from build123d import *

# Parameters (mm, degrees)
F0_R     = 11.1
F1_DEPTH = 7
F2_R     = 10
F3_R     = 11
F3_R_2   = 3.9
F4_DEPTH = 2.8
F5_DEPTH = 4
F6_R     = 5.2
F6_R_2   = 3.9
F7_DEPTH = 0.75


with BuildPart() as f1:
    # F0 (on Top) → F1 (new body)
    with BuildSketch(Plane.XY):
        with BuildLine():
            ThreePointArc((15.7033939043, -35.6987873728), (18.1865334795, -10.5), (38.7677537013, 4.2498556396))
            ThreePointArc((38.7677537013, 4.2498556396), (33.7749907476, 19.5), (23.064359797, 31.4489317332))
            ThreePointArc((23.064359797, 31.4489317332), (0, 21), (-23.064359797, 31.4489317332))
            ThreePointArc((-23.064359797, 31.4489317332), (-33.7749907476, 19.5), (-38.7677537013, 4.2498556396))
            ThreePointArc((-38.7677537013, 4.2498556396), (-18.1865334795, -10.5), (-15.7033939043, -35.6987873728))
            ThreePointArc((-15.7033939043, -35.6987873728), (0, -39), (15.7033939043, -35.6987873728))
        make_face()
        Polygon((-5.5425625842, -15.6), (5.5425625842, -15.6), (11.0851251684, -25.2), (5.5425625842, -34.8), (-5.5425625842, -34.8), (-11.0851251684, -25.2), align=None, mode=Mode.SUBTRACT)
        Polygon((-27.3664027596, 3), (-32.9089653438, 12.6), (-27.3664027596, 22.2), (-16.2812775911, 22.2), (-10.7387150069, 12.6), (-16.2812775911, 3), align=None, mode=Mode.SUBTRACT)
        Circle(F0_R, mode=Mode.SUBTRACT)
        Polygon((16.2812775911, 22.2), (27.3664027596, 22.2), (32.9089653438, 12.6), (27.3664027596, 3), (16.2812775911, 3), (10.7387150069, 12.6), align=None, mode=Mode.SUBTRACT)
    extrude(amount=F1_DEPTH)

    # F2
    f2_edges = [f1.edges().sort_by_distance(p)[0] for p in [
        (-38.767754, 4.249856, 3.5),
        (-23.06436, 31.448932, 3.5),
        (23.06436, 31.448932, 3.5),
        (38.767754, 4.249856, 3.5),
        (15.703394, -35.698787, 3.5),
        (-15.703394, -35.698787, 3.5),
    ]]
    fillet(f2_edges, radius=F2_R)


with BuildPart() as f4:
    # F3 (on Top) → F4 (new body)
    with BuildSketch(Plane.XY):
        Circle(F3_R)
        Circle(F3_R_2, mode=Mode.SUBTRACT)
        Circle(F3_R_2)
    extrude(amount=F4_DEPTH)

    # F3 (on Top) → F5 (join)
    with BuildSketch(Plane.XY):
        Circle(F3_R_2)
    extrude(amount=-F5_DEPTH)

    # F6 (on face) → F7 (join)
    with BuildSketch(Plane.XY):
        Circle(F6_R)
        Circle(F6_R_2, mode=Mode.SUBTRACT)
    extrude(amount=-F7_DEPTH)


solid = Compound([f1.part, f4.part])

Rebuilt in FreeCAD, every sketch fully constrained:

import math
import FreeCAD as App
import Part
import Sketcher

V = App.Vector
Q = App.Units.Quantity


def edges_at(feature, points):
    """Names of the edges that pass closest to the given points."""
    edges = feature.Shape.Edges
    near = lambda p: min(range(len(edges)), key=lambda i: edges[i].distToShape(Part.Vertex(*p))[0])
    return sorted({f"Edge{near(p) + 1}" for p in points})

doc = App.newDocument("Part")
body = doc.addObject("PartDesign::Body", "Body")

sketch1 = doc.addObject("Sketcher::SketchObject", "Sketch")
body.addObject(sketch1)
sketch1.AttachmentSupport = (doc.XY_Plane, [""])
sketch1.MapMode = "FlatFace"
sketch1.addGeometry([
    Part.ArcOfCircle(Part.Circle(V(44.756127, -25.839962, 0), V(0, 0, 1), 30.679924), math.radians(101.255745), math.radians(198.744255)),
    Part.ArcOfCircle(Part.Circle(V(0, 0, 0), V(0, 0, 1), 39), math.radians(6.255982), math.radians(53.744018)),
    Part.ArcOfCircle(Part.Circle(V(0, 51.679924, 0), V(0, 0, 1), 30.679924), math.radians(-138.744255), math.radians(-41.255745)),
    Part.ArcOfCircle(Part.Circle(V(0, 0, 0), V(0, 0, 1), 39), math.radians(126.255982), math.radians(173.744018)),
    Part.ArcOfCircle(Part.Circle(V(-44.756127, -25.839962, 0), V(0, 0, 1), 30.679924), math.radians(-18.744255), math.radians(78.744255)),
    Part.ArcOfCircle(Part.Circle(V(0, 0, 0), V(0, 0, 1), 39), math.radians(-113.744018), math.radians(-66.255982)),
    Part.LineSegment(V(-11.085125, -25.2, 0), V(-5.542563, -15.6, 0)),
    Part.LineSegment(V(-5.542563, -15.6, 0), V(5.542563, -15.6, 0)),
    Part.LineSegment(V(5.542563, -15.6, 0), V(11.085125, -25.2, 0)),
    Part.LineSegment(V(11.085125, -25.2, 0), V(5.542563, -34.8, 0)),
    Part.LineSegment(V(5.542563, -34.8, 0), V(-5.542563, -34.8, 0)),
    Part.LineSegment(V(-5.542563, -34.8, 0), V(-11.085125, -25.2, 0)),
    Part.LineSegment(V(-16.281278, 3, 0), V(-27.366403, 3, 0)),
    Part.LineSegment(V(-27.366403, 3, 0), V(-32.908965, 12.6, 0)),
    Part.LineSegment(V(-32.908965, 12.6, 0), V(-27.366403, 22.2, 0)),
    Part.LineSegment(V(-27.366403, 22.2, 0), V(-16.281278, 22.2, 0)),
    Part.LineSegment(V(-16.281278, 22.2, 0), V(-10.738715, 12.6, 0)),
    Part.LineSegment(V(-10.738715, 12.6, 0), V(-16.281278, 3, 0)),
    Part.Circle(V(0, 0, 0), V(0, 0, 1), 11.1),
    Part.LineSegment(V(10.738715, 12.6, 0), V(16.281278, 22.2, 0)),
    Part.LineSegment(V(16.281278, 22.2, 0), V(27.366403, 22.2, 0)),
    Part.LineSegment(V(27.366403, 22.2, 0), V(32.908965, 12.6, 0)),
    Part.LineSegment(V(32.908965, 12.6, 0), V(27.366403, 3, 0)),
    Part.LineSegment(V(27.366403, 3, 0), V(16.281278, 3, 0)),
    Part.LineSegment(V(16.281278, 3, 0), V(10.738715, 12.6, 0)),
], False)
sketch1.addConstraint([
    Sketcher.Constraint("Coincident", 0, 1, 1, 1),
    Sketcher.Constraint("Coincident", 1, 2, 2, 2),
    Sketcher.Constraint("Coincident", 2, 1, 3, 1),
    Sketcher.Constraint("Coincident", 3, 2, 4, 2),
    Sketcher.Constraint("Coincident", 4, 1, 5, 1),
    Sketcher.Constraint("Coincident", 5, 2, 0, 2),
    Sketcher.Constraint("Coincident", 6, 2, 7, 1),
    Sketcher.Constraint("Coincident", 7, 2, 8, 1),
    Sketcher.Constraint("Coincident", 8, 2, 9, 1),
    Sketcher.Constraint("Coincident", 9, 2, 10, 1),
    Sketcher.Constraint("Coincident", 10, 2, 11, 1),
    Sketcher.Constraint("Coincident", 11, 2, 6, 1),
    Sketcher.Constraint("Coincident", 12, 2, 13, 1),
    Sketcher.Constraint("Coincident", 13, 2, 14, 1),
    Sketcher.Constraint("Coincident", 14, 2, 15, 1),
    Sketcher.Constraint("Coincident", 15, 2, 16, 1),
    Sketcher.Constraint("Coincident", 16, 2, 17, 1),
    Sketcher.Constraint("Coincident", 17, 2, 12, 1),
    Sketcher.Constraint("Coincident", 19, 2, 20, 1),
    Sketcher.Constraint("Coincident", 20, 2, 21, 1),
    Sketcher.Constraint("Coincident", 21, 2, 22, 1),
    Sketcher.Constraint("Coincident", 22, 2, 23, 1),
    Sketcher.Constraint("Coincident", 23, 2, 24, 1),
    Sketcher.Constraint("Coincident", 24, 2, 19, 1),
    Sketcher.Constraint("Horizontal", 7),
    Sketcher.Constraint("Horizontal", 10),
    Sketcher.Constraint("Horizontal", 12),
    Sketcher.Constraint("Horizontal", 15),
    Sketcher.Constraint("Horizontal", 20),
    Sketcher.Constraint("Horizontal", 23),
    Sketcher.Constraint("Coincident", 1, 3, -1, 1),
    Sketcher.Constraint("Coincident", 3, 3, -1, 1),
    Sketcher.Constraint("Coincident", 5, 3, -1, 1),
    Sketcher.Constraint("Coincident", 18, 3, -1, 1),
    Sketcher.Constraint("Equal", 0, 2),
    Sketcher.Constraint("Equal", 1, 3),
    Sketcher.Constraint("Equal", 2, 4),
    Sketcher.Constraint("Equal", 3, 5),
    Sketcher.Constraint("Symmetric", 0, 3, 4, 3, -2),
    Sketcher.Constraint("Symmetric", 8, 2, 11, 2, -2),
    Sketcher.Constraint("Symmetric", 15, 2, 19, 2, -2),
    Sketcher.Constraint("Symmetric", 13, 2, 21, 2, -2),
    Sketcher.Constraint("Symmetric", 12, 2, 22, 2, -2),
    Sketcher.Constraint("Symmetric", 16, 2, 24, 2, -2),
    Sketcher.Constraint("PointOnObject", 2, 3, -2),
    Sketcher.Constraint("Parallel", 6, 9),
    Sketcher.Constraint("Parallel", 8, 11),
    Sketcher.Constraint("Parallel", 11, 13),
    Sketcher.Constraint("Parallel", 9, 14),
    Sketcher.Constraint("Parallel", 13, 16),
    Sketcher.Constraint("Parallel", 14, 17),
    Sketcher.Constraint("Parallel", 17, 19),
    Sketcher.Constraint("Parallel", 16, 21),
    Sketcher.Constraint("Parallel", 21, 24),
    Sketcher.Constraint("Horizontal", 13, 2, 16, 2),
    Sketcher.Constraint("Vertical", 7, 2, 9, 2),
    Sketcher.Constraint("Vertical", 12, 2, 14, 2),
    Sketcher.Constraint("Equal", 10, 12),
    Sketcher.Constraint("Equal", 11, 13),
    Sketcher.Constraint("Radius", 1, Q("39 mm")),
    Sketcher.Constraint("Diameter", 18, Q("22.2 mm")),
    Sketcher.Constraint("Angle", 6, Q("60 deg")),
    Sketcher.Constraint("DistanceY", -1, 1, 12, 2, Q("3 mm")),
    Sketcher.Constraint("DistanceY", 6, 2, -1, 1, Q("15.6 mm")),
    Sketcher.Constraint("DistanceY", 8, 2, -1, 1, Q("25.2 mm")),
    Sketcher.Constraint("Radius", 0, Q("30.679924 mm")),
    Sketcher.Constraint("DistanceX", 7, 1, 7, 2, Q("11.085125 mm")),
    Sketcher.Constraint("DistanceX", -1, 1, 1, 2, Q("23.06436 mm")),
    Sketcher.Constraint("DistanceX", 4, 1, 6, 2, Q("10.160831 mm")),
    Sketcher.Constraint("DistanceX", 3, 2, 12, 2, Q("11.401351 mm")),
    Sketcher.Constraint("DistanceX", -1, 1, 0, 3, Q("44.756127 mm")),
])
pad1 = doc.addObject("PartDesign::Pad", "Pad")
body.addObject(pad1)
pad1.Profile = sketch1
pad1.Length = 7
doc.recompute()

fillet = doc.addObject("PartDesign::Fillet", "Fillet")
body.addObject(fillet)
fillet.Base = (pad1, edges_at(pad1, [
    (-38.768, 4.25, 3.5),
    (-23.064, 31.449, 3.5),
    (23.064, 31.449, 3.5),
    (38.768, 4.25, 3.5),
    (15.703, -35.699, 3.5),
    (-15.703, -35.699, 3.5),
]))
fillet.Radius = 10
body2 = doc.addObject("PartDesign::Body", "Body001")

sketch2 = doc.addObject("Sketcher::SketchObject", "Sketch001")
body2.addObject(sketch2)
sketch2.AttachmentSupport = (doc.getObject("XY_Plane001"), [""])
sketch2.MapMode = "FlatFace"
sketch2.addGeometry(Part.Circle(V(0, 0, 0), V(0, 0, 1), 11), False)
sketch2.addConstraint([
    Sketcher.Constraint("Coincident", 0, 3, -1, 1),
    Sketcher.Constraint("Diameter", 0, Q("22 mm")),
])
pad2 = doc.addObject("PartDesign::Pad", "Pad001")
body2.addObject(pad2)
pad2.Profile = sketch2
pad2.Length = 2.8

sketch3 = doc.addObject("Sketcher::SketchObject", "Sketch002")
body2.addObject(sketch3)
sketch3.AttachmentSupport = (doc.getObject("XY_Plane001"), [""])
sketch3.MapMode = "FlatFace"
sketch3.addGeometry(Part.Circle(V(0, 0, 0), V(0, 0, 1), 3.9), False)
sketch3.addConstraint([
    Sketcher.Constraint("Coincident", 0, 3, -1, 1),
    Sketcher.Constraint("Diameter", 0, Q("7.8 mm")),
])
pad3 = doc.addObject("PartDesign::Pad", "Pad002")
body2.addObject(pad3)
pad3.Profile = sketch3
pad3.Length = 4
pad3.Reversed = True

sketch4 = doc.addObject("Sketcher::SketchObject", "Sketch003")
body2.addObject(sketch4)
sketch4.AttachmentSupport = (doc.getObject("XY_Plane001"), [""])
sketch4.MapMode = "FlatFace"
sketch4.addGeometry([
    Part.Circle(V(0, 0, 0), V(0, 0, 1), 5.2),
    Part.Circle(V(0, 0, 0), V(0, 0, 1), 3.9),
], False)
sketch4.addConstraint([
    Sketcher.Constraint("Coincident", 0, 3, -1, 1),
    Sketcher.Constraint("Coincident", 1, 3, -1, 1),
    Sketcher.Constraint("Diameter", 0, Q("10.4 mm")),
    Sketcher.Constraint("Diameter", 1, Q("7.8 mm")),
])
pad4 = doc.addObject("PartDesign::Pad", "Pad003")
body2.addObject(pad4)
pad4.Profile = sketch4
pad4.Length = 0.75
pad4.Reversed = True

doc.recompute()
